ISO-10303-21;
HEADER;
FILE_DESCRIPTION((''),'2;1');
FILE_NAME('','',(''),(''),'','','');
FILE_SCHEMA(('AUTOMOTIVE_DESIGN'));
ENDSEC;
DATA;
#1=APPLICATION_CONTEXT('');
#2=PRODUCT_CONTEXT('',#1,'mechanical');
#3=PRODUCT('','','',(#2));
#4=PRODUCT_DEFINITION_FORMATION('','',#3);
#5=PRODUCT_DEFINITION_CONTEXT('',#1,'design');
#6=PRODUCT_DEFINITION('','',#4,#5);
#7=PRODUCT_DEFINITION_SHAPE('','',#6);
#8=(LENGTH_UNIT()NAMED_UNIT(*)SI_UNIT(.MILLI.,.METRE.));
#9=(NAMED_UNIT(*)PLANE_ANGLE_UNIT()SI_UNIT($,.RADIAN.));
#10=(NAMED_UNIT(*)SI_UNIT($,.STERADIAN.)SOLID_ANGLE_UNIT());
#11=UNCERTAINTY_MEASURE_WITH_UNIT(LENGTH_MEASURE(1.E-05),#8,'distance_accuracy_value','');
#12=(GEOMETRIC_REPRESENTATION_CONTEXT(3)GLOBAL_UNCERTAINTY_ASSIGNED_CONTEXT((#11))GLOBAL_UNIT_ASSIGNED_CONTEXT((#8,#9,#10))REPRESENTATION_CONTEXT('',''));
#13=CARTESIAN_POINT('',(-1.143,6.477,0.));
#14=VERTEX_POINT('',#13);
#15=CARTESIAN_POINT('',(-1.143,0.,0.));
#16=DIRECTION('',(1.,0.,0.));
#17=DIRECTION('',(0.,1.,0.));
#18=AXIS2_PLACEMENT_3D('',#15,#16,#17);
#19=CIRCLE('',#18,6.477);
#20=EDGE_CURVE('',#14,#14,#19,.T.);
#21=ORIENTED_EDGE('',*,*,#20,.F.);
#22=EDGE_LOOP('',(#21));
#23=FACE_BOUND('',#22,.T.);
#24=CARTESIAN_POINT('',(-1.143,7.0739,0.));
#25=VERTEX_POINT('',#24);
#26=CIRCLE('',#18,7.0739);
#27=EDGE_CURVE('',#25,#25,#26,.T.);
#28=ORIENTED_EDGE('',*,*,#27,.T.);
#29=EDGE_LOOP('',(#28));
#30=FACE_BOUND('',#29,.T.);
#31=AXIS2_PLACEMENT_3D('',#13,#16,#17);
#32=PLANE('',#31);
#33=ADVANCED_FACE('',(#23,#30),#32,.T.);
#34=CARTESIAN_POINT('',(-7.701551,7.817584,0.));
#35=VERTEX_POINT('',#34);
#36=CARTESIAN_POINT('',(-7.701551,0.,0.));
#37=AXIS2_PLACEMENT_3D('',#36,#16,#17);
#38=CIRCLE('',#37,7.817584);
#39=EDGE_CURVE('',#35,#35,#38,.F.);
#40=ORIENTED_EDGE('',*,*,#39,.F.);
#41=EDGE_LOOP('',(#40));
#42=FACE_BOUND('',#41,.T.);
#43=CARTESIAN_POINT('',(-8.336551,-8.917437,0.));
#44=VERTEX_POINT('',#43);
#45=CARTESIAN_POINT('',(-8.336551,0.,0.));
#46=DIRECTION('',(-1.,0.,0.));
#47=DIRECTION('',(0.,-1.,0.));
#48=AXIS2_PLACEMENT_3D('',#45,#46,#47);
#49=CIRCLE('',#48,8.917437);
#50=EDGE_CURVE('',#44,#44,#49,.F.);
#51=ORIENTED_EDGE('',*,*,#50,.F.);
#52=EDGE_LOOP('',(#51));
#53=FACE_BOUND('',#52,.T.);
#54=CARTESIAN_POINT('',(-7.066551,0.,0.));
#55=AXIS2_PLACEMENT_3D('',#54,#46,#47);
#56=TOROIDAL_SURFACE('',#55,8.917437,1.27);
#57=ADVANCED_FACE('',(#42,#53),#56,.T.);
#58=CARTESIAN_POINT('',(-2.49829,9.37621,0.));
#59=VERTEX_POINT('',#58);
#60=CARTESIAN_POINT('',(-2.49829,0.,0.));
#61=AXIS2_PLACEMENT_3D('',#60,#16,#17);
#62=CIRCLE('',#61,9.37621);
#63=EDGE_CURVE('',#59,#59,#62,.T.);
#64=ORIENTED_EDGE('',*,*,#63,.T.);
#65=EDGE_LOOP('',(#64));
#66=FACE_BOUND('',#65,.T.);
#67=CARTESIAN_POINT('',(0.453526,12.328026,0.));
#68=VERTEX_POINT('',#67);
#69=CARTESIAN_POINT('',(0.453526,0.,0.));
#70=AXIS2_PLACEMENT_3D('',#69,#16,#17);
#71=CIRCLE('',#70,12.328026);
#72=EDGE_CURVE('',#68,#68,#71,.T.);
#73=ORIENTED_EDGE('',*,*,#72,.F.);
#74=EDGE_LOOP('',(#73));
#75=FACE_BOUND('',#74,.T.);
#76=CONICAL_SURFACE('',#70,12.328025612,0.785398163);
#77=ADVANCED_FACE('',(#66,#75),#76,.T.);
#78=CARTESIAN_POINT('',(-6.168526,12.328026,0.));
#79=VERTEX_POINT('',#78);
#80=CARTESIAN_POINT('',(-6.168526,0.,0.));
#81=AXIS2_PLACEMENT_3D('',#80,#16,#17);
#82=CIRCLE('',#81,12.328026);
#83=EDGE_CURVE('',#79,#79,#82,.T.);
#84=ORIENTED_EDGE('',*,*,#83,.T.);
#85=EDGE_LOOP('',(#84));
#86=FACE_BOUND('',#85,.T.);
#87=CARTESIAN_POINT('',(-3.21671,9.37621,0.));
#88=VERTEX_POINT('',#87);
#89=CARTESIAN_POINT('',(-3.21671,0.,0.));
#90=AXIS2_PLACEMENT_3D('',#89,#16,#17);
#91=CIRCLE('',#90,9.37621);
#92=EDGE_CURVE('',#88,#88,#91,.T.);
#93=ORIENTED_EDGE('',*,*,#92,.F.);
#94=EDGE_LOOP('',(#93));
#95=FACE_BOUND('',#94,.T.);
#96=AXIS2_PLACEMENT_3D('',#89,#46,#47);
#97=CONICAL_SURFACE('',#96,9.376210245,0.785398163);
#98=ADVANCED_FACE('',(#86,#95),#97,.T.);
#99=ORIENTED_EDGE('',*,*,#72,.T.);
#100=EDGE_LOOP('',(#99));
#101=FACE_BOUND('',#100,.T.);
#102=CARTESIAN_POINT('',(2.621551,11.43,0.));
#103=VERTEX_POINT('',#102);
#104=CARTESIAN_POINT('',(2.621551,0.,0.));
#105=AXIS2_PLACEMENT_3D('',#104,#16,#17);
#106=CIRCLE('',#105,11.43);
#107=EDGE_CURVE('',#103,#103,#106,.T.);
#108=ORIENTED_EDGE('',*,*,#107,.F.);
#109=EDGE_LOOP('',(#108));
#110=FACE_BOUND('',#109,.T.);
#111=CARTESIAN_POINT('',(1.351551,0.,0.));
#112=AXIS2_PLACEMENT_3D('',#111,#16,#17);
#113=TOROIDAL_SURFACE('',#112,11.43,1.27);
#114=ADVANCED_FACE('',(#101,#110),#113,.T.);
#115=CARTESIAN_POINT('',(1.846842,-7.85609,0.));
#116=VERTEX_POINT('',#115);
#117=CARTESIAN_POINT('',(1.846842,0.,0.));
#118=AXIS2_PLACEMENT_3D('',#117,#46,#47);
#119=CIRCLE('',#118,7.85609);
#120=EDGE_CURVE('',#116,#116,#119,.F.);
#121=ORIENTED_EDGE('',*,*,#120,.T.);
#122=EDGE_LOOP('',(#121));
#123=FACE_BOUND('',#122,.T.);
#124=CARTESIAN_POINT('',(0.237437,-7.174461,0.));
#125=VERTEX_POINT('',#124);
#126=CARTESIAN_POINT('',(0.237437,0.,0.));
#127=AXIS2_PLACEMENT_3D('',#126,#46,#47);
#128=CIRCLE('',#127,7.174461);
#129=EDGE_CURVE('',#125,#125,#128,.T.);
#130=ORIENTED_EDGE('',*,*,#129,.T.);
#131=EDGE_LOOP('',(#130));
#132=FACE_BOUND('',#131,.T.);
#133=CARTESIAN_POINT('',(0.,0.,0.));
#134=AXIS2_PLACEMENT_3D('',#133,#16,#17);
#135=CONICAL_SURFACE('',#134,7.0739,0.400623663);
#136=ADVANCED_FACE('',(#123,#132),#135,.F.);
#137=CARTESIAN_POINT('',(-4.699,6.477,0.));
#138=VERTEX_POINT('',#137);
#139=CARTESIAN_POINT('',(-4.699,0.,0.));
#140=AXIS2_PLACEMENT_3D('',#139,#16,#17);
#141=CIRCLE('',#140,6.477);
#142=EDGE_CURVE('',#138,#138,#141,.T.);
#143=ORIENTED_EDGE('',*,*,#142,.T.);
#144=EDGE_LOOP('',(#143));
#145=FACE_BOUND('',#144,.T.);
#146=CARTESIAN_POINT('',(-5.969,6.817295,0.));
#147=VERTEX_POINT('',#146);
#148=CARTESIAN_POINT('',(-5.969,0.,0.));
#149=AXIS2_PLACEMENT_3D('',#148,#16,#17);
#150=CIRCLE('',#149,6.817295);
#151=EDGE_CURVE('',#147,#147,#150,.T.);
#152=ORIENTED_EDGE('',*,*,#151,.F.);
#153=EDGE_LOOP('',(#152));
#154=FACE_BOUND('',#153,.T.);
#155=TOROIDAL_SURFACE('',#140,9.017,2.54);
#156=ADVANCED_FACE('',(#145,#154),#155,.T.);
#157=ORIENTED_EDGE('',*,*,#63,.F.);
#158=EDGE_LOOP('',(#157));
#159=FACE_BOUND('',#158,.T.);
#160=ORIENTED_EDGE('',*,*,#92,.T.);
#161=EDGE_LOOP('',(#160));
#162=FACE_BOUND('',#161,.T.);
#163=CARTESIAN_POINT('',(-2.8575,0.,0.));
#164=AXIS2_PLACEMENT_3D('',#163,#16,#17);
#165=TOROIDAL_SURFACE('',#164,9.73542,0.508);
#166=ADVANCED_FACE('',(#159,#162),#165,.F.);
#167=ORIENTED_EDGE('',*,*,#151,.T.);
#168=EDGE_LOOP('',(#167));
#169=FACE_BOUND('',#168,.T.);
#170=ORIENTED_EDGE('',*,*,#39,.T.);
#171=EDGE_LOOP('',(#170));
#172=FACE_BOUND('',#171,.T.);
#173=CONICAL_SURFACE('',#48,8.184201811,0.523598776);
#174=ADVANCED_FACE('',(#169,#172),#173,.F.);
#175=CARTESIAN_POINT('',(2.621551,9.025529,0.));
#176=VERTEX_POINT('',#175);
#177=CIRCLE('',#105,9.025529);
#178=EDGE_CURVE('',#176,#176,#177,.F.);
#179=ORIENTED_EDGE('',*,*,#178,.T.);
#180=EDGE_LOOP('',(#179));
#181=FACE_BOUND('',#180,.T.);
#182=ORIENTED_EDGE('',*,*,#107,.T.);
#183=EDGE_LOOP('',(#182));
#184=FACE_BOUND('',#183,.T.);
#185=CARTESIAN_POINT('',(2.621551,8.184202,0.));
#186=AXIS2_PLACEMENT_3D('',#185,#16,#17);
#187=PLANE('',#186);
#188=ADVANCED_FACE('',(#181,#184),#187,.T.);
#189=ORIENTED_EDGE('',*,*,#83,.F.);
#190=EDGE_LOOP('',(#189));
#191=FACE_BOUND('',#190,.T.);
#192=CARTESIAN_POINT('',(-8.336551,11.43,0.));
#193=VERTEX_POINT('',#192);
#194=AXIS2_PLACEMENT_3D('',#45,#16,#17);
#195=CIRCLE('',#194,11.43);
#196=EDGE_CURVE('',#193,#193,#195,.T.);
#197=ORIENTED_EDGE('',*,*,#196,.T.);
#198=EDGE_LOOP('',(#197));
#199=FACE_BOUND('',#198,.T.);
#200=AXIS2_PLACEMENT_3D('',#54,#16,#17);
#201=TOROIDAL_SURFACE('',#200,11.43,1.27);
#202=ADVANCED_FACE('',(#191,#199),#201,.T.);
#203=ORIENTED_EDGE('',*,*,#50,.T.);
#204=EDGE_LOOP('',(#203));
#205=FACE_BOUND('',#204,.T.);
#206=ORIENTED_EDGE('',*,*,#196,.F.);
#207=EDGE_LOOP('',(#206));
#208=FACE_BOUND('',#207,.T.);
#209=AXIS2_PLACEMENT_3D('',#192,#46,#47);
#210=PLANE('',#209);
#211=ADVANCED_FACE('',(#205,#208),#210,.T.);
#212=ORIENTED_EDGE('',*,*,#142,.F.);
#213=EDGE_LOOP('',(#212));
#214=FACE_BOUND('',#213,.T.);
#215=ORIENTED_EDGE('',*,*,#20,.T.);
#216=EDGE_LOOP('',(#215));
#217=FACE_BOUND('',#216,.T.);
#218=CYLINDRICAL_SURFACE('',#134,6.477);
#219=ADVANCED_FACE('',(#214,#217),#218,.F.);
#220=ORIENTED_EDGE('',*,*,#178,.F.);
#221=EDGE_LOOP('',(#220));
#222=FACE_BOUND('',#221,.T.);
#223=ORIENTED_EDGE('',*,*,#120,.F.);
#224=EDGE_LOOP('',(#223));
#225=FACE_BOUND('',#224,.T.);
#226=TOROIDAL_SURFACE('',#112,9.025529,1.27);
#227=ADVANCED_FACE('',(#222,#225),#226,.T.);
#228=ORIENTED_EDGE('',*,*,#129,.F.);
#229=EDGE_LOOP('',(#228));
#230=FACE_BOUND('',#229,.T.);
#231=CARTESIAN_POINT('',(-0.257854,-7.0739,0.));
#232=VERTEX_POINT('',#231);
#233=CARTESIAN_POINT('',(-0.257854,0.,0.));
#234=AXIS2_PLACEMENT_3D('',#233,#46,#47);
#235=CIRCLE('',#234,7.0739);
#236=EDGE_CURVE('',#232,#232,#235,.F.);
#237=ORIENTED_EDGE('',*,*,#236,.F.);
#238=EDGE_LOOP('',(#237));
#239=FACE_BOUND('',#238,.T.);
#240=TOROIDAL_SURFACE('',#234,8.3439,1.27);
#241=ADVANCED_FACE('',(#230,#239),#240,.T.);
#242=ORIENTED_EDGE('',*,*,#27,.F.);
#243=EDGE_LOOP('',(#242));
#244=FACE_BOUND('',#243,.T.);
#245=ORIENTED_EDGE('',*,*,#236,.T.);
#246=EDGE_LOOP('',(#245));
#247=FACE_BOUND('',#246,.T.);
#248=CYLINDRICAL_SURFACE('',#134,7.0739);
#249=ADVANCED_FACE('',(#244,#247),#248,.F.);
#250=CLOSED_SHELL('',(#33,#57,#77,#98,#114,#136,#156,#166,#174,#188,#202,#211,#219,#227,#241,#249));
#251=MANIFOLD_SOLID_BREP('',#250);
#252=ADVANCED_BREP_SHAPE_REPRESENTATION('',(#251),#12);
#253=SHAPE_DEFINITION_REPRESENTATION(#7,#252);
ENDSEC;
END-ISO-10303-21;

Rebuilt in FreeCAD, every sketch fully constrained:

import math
import FreeCAD as App
import Part
import Sketcher
from FreeCAD import Vector
Q = App.Units.Quantity


def edges_at(feature, points):
    """Names of the edges that pass closest to the given points."""
    edges = feature.Shape.Edges
    near = lambda p: min(range(len(edges)), key=lambda i: edges[i].distToShape(Part.Vertex(*p))[0])
    return sorted({f"Edge{near(p) + 1}" for p in points})

doc = App.newDocument("Part")
body = doc.addObject("PartDesign::Body", "Body")

# Sketch on XY plane
sketch1 = doc.addObject("Sketcher::SketchObject", "Sketch")
body.addObject(sketch1)
sketch1.AttachmentSupport = (doc.XY_Plane, [""])
sketch1.MapMode = "FlatFace"
sketch1.addGeometry([
    Part.LineSegment(Vector(-4.7, 6.5, 0), Vector(-1.1, 6.5, 0)),  # 0
    Part.LineSegment(Vector(-1.1, 6.5, 0), Vector(-1.1, 7.1, 0)),  # 1
    Part.LineSegment(Vector(-1.1, 7.1, 0), Vector(0, 7.1, 0)),  # 2
    Part.LineSegment(Vector(0, 7.1, 0), Vector(2.6, 8.2, 0)),  # 3
    Part.LineSegment(Vector(2.6, 8.2, 0), Vector(2.6, 11.4, 0)),  # 4
    Part.ArcOfCircle(Part.Circle(Vector(1.4, 11.4, 0), Vector(0, 0, 1), 1.3), math.radians(0), math.radians(135)),  # 5
    Part.LineSegment(Vector(0.5, 12.3, 0), Vector(-2.5, 9.4, 0)),  # 6
    Part.ArcOfCircle(Part.Circle(Vector(-2.9, 9.7, 0), Vector(0, 0, 1), 0.5), math.radians(-135), math.radians(-45)),  # 7
    Part.LineSegment(Vector(-3.2, 9.4, 0), Vector(-6.2, 12.3, 0)),  # 8
    Part.ArcOfCircle(Part.Circle(Vector(-7.1, 11.4, 0), Vector(0, 0, 1), 1.3), math.radians(45), math.radians(180)),  # 9
    Part.LineSegment(Vector(-8.3, 11.4, 0), Vector(-8.3, 8.2, 0)),  # 10
    Part.LineSegment(Vector(-8.3, 8.2, 0), Vector(-6, 6.8, 0)),  # 11
    Part.ArcOfCircle(Part.Circle(Vector(-4.7, 9, 0), Vector(0, 0, 1), 2.5), math.radians(-120), math.radians(-90)),  # 12
], False)
sketch1.addConstraint([
    Sketcher.Constraint("Coincident", 0, 2, 1, 1),
    Sketcher.Constraint("Coincident", 1, 2, 2, 1),
    Sketcher.Constraint("Coincident", 2, 2, 3, 1),
    Sketcher.Constraint("Coincident", 3, 2, 4, 1),
    Sketcher.Constraint("Tangent", 4, 2, 5, 1),
    Sketcher.Constraint("Tangent", 5, 2, 6, 1),
    Sketcher.Constraint("Tangent", 6, 2, 7, 2),
    Sketcher.Constraint("Tangent", 7, 1, 8, 1),
    Sketcher.Constraint("Tangent", 8, 2, 9, 1),
    Sketcher.Constraint("Tangent", 9, 2, 10, 1),
    Sketcher.Constraint("Coincident", 10, 2, 11, 1),
    Sketcher.Constraint("Tangent", 11, 2, 12, 1),
    Sketcher.Constraint("Tangent", 12, 2, 0, 1),
    Sketcher.Constraint("Horizontal", 0),
    Sketcher.Constraint("Vertical", 1),
    Sketcher.Constraint("Horizontal", 2),
    Sketcher.Constraint("Vertical", 4),
    Sketcher.Constraint("Vertical", 10),
    Sketcher.Constraint("Equal", 5, 9),
    Sketcher.Constraint("PointOnObject", 2, 2, -2),
    Sketcher.Constraint("Perpendicular", 6, 8),
    Sketcher.Constraint("Horizontal", 5, 3, 9, 3),
    Sketcher.Constraint("Horizontal", 6, 2, 7, 1),
    Sketcher.Constraint("Horizontal", 3, 2, 10, 2),
    Sketcher.Constraint("Radius", 12, Q("0.1 in")),
    Sketcher.Constraint("Radius", 5, Q("0.05 in")),
    Sketcher.Constraint("Radius", 7, Q("0.02 in")),
    Sketcher.Constraint("Angle", 11, Q("-30 deg")),
    Sketcher.Constraint("DistanceX", 0, 1, 0, 2, Q("0.14 in")),
    Sketcher.Constraint("DistanceX", 2, 1, 2, 2, Q("0.045 in")),
    Sketcher.Constraint("DistanceY", -1, 1, 5, 3, Q("0.45 in")),
    Sketcher.Constraint("DistanceY", 1, 1, 1, 2, Q("0.0235 in")),
    Sketcher.Constraint("DistanceY", -1, 1, 12, 3, Q("0.355 in")),
    Sketcher.Constraint("DistanceY", 4, 1, 4, 2, Q("3.245798 mm")),
    Sketcher.Constraint("DistanceX", 7, 3, -1, 1, Q("0.1125 in")),
])
revolution = doc.addObject("PartDesign::Revolution", "Revolution")
body.addObject(revolution)
revolution.Profile = sketch1
revolution.ReferenceAxis = (sketch1, ["H_Axis"])
revolution.Angle = 360
doc.recompute()

fillet = doc.addObject("PartDesign::Fillet", "Fillet")
body.addObject(fillet)
fillet.Base = (revolution, edges_at(revolution, [(2.622, -8.184, 0), (-8.337, -8.184, 0)]))
fillet.Radius = Q("0.05 in")
doc.recompute()

fillet2 = doc.addObject("PartDesign::Fillet", "Fillet001")
body.addObject(fillet2)
fillet2.Base = (fillet, edges_at(fillet, [(0, -7.074, 0)]))
fillet2.Radius = Q("0.05 in")

doc.recompute()
